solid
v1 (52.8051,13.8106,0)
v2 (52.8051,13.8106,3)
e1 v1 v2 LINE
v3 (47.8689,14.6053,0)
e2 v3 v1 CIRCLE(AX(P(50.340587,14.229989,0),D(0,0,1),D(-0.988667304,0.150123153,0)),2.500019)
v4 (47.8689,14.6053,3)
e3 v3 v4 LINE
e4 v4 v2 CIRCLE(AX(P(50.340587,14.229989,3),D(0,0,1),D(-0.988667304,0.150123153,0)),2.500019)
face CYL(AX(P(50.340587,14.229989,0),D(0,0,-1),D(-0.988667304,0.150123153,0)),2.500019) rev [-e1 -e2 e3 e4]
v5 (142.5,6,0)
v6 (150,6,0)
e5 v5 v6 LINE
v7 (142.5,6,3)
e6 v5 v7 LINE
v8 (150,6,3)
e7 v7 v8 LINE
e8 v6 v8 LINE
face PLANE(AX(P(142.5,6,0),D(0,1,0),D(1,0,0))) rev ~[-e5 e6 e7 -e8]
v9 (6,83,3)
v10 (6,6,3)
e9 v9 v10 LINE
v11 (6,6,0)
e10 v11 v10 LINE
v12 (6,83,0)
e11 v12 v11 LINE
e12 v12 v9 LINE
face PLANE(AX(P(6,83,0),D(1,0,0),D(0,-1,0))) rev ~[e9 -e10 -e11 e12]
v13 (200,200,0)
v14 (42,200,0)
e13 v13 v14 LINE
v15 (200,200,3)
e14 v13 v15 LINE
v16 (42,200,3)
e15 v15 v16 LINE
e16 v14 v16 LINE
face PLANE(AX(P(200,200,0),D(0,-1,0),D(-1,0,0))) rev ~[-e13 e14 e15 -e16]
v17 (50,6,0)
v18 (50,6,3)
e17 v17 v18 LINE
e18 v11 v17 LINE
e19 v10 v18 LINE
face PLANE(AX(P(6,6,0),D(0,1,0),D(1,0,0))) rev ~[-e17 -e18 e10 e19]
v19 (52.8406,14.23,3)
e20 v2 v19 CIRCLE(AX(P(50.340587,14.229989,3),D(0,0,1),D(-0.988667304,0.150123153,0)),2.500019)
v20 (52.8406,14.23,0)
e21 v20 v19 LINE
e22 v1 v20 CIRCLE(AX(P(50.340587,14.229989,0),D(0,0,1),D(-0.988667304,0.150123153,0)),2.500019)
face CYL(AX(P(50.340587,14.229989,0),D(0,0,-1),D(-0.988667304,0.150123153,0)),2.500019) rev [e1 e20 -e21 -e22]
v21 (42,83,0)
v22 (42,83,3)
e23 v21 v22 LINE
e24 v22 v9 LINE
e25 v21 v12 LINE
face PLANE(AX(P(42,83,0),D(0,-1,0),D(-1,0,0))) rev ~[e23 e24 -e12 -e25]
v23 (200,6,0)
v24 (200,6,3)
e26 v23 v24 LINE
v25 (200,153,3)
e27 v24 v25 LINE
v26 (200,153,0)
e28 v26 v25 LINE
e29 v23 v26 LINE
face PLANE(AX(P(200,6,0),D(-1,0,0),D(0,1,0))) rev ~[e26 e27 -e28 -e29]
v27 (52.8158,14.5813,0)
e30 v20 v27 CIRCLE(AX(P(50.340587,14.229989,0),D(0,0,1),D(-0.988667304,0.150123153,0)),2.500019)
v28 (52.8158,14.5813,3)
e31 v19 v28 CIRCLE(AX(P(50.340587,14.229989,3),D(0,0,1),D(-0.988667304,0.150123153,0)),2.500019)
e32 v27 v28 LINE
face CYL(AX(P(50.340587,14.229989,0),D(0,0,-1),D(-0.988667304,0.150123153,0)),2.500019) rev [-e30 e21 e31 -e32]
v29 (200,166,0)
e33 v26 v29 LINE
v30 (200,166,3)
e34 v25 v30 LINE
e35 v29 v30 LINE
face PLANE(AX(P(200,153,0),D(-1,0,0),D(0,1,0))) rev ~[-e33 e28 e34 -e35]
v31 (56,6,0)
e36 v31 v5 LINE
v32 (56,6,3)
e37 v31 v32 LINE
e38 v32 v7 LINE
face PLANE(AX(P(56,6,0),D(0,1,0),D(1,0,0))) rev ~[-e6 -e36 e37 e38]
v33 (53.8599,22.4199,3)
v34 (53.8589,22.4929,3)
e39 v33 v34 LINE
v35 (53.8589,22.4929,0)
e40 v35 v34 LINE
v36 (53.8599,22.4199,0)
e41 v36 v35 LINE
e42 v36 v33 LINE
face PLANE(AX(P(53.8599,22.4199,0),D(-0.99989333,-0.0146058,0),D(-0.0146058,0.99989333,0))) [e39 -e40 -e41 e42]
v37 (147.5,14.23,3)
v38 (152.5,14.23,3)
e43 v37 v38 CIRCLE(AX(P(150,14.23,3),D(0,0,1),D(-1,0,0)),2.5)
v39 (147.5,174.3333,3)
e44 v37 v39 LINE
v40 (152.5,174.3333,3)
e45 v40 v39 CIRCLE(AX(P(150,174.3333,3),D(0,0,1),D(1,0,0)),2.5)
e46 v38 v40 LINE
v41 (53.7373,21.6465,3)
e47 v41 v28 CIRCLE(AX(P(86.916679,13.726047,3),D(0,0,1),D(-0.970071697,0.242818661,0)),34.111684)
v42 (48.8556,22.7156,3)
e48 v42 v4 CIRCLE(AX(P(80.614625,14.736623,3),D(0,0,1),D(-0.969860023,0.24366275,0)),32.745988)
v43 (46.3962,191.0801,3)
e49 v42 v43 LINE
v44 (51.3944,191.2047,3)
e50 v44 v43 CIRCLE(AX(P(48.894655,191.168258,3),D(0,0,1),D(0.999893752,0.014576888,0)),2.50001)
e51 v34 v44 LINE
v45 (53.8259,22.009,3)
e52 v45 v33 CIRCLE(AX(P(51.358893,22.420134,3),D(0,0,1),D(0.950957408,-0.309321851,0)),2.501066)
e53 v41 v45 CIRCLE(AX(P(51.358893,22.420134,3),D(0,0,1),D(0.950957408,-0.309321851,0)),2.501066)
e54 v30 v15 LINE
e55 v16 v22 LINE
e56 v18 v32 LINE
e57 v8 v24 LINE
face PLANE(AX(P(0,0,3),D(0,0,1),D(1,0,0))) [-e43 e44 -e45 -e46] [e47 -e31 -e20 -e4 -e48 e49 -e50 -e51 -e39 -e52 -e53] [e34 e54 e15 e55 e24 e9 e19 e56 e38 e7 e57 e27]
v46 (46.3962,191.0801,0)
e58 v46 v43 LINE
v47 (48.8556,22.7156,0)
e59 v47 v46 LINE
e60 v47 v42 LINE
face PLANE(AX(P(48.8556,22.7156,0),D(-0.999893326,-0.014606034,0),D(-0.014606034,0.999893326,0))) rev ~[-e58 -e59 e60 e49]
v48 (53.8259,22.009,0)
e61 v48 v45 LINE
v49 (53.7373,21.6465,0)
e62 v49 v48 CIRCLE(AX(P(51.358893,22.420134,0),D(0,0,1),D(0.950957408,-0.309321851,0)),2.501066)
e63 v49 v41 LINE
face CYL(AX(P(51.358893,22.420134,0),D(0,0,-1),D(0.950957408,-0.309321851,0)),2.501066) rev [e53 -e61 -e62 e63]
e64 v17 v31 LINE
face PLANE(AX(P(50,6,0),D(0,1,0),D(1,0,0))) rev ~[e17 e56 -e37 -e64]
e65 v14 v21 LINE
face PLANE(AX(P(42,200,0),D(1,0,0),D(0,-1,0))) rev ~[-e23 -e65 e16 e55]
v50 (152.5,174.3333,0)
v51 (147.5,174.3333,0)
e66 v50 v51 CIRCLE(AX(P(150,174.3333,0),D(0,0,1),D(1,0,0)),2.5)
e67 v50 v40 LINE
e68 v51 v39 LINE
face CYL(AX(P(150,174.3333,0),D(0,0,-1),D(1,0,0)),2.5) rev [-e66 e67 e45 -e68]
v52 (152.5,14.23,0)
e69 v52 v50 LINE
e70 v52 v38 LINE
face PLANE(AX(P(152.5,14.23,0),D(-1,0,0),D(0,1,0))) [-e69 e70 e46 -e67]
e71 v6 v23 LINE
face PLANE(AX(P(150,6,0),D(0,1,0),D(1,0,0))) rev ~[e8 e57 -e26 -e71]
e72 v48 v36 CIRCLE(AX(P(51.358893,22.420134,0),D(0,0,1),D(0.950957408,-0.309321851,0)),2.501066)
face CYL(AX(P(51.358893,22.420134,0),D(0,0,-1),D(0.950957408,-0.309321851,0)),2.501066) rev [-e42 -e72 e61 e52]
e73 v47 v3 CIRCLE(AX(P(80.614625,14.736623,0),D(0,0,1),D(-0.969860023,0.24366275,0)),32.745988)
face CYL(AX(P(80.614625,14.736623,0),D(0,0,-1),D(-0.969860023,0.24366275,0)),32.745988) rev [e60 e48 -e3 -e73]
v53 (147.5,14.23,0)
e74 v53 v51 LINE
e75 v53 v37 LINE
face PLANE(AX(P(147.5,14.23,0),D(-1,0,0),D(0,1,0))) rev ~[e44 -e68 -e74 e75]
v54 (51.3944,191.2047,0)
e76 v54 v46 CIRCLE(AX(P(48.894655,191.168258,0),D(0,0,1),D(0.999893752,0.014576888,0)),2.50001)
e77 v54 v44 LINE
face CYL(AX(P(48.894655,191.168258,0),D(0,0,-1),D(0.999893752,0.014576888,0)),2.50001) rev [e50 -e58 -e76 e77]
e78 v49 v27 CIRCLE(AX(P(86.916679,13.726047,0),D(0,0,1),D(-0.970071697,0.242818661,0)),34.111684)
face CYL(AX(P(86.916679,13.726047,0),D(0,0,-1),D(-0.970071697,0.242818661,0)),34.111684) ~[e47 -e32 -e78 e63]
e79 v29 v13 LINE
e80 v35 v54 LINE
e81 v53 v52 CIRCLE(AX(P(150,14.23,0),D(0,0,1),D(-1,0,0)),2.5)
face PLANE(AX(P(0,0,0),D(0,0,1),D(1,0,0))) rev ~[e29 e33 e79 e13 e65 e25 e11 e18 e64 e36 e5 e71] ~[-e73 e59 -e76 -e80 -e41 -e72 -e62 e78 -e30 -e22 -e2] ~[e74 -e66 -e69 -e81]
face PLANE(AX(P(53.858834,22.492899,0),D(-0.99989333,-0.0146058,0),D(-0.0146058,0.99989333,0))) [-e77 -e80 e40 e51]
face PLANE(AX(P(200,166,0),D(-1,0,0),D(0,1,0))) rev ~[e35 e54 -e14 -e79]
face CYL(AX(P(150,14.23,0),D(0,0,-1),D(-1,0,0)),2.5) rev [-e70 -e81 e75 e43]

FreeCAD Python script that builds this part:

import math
import FreeCAD as App
import Part
import Sketcher

V = App.Vector

doc = App.newDocument("Part")
body = doc.addObject("PartDesign::Body", "Body")

# Sketch on XY plane
sketch1 = body.newObject("Sketcher::SketchObject", "Sketch")
sketch1.AttachmentSupport = (doc.getObject("XY_Plane"), [""])
sketch1.MapMode = "FlatFace"
sketch1.addGeometry(Part.LineSegment(V(6, 83, 0), V(6, 6, 0)), False)
sketch1.addGeometry(Part.LineSegment(V(6, 6, 0), V(200, 6, 0)), False)
sketch1.addGeometry(Part.LineSegment(V(200, 6, 0), V(200, 200, 0)), False)
sketch1.addGeometry(Part.LineSegment(V(200, 200, 0), V(42, 200, 0)), False)
sketch1.addGeometry(Part.LineSegment(V(42, 200, 0), V(42, 83, 0)), False)
sketch1.addGeometry(Part.LineSegment(V(42, 83, 0), V(6, 83, 0)), False)
sketch1.addGeometry(Part.ArcOfCircle(Part.Circle(V(50.3, 14.2, 0), V(0, 0, 1), 2.5), math.radians(171), math.radians(368)), False)
sketch1.addGeometry(Part.ArcOfCircle(Part.Circle(V(80.6, 14.7, 0), V(0, 0, 1), 32.7), math.radians(165.9), math.radians(180.23)), False)
sketch1.addGeometry(Part.LineSegment(V(48.9, 22.7, 0), V(46.4, 191.1, 0)), False)
sketch1.addGeometry(Part.ArcOfCircle(Part.Circle(V(48.9, 191.2, 0), V(0, 0, 1), 2.5), math.radians(1), math.radians(182)), False)
sketch1.addGeometry(Part.LineSegment(V(51.4, 191.2, 0), V(53.9, 22.4, 0)), False)
sketch1.addGeometry(Part.ArcOfCircle(Part.Circle(V(51.4, 22.4, 0), V(0, 0, 1), 2.5), math.radians(-18.02), math.radians(-0.01)), False)
sketch1.addGeometry(Part.ArcOfCircle(Part.Circle(V(86.9, 13.7, 0), V(0, 0, 1), 34.1), math.radians(166.57), math.radians(178.56)), False)
sketch1.addGeometry(Part.ArcOfCircle(Part.Circle(V(150, 174.3, 0), V(0, 0, 1), 2.5), math.radians(0), math.radians(180)), False)
sketch1.addGeometry(Part.LineSegment(V(152.5, 174.3, 0), V(152.5, 14.2, 0)), False)
sketch1.addGeometry(Part.ArcOfCircle(Part.Circle(V(150, 14.2, 0), V(0, 0, 1), 2.5), math.radians(180), math.radians(360)), False)
sketch1.addGeometry(Part.LineSegment(V(147.5, 14.2, 0), V(147.5, 174.3, 0)), False)
sketch1.addConstraint(Sketcher.Constraint("Coincident", 0, 2, 1, 1))
sketch1.addConstraint(Sketcher.Constraint("Coincident", 1, 2, 2, 1))
sketch1.addConstraint(Sketcher.Constraint("Coincident", 2, 2, 3, 1))
sketch1.addConstraint(Sketcher.Constraint("Coincident", 3, 2, 4, 1))
sketch1.addConstraint(Sketcher.Constraint("Coincident", 4, 2, 5, 1))
sketch1.addConstraint(Sketcher.Constraint("Coincident", 5, 2, 0, 1))
sketch1.addConstraint(Sketcher.Constraint("Coincident", 6, 1, 7, 2))
sketch1.addConstraint(Sketcher.Constraint("Coincident", 7, 1, 8, 1))
sketch1.addConstraint(Sketcher.Constraint("Coincident", 8, 2, 9, 2))
sketch1.addConstraint(Sketcher.Constraint("Tangent", 9, 1, 10, 1))
sketch1.addConstraint(Sketcher.Constraint("Coincident", 10, 2, 11, 2))
sketch1.addConstraint(Sketcher.Constraint("Coincident", 11, 1, 12, 1))
sketch1.addConstraint(Sketcher.Constraint("Coincident", 12, 2, 6, 2))
sketch1.addConstraint(Sketcher.Constraint("Tangent", 13, 1, 14, 1))
sketch1.addConstraint(Sketcher.Constraint("Tangent", 14, 2, 15, 2))
sketch1.addConstraint(Sketcher.Constraint("Tangent", 15, 1, 16, 1))
sketch1.addConstraint(Sketcher.Constraint("Tangent", 16, 2, 13, 2))
sketch1.addConstraint(Sketcher.Constraint("Vertical", 0))
sketch1.addConstraint(Sketcher.Constraint("Horizontal", 1))
sketch1.addConstraint(Sketcher.Constraint("Vertical", 2))
sketch1.addConstraint(Sketcher.Constraint("Horizontal", 3))
sketch1.addConstraint(Sketcher.Constraint("Vertical", 4))
sketch1.addConstraint(Sketcher.Constraint("Horizontal", 5))
sketch1.addConstraint(Sketcher.Constraint("Vertical", 14))
sketch1.addConstraint(Sketcher.Constraint("Vertical", 16))
sketch1.addConstraint(Sketcher.Constraint("Equal", 6, 9))
sketch1.addConstraint(Sketcher.Constraint("Equal", 9, 13))
sketch1.addConstraint(Sketcher.Constraint("Parallel", 8, 10))
sketch1.addConstraint(Sketcher.Constraint("Horizontal", 6, 3, 15, 3))
sketch1.addConstraint(Sketcher.Constraint("Equal", 1, 2))
sketch1.addConstraint(Sketcher.Constraint("DistanceX", 1, 1, 1, 2, 194.0))
sketch1.addConstraint(Sketcher.Constraint("Radius", 6, 2.5))
sketch1.addConstraint(Sketcher.Constraint("DistanceX", 3, 2, 3, 1, 158.0))
sketch1.addConstraint(Sketcher.Constraint("DistanceY", 0, 2, 0, 1, 77.0))
sketch1.addConstraint(Sketcher.Constraint("DistanceX", -1, 1, 13, 3, 150.0))
sketch1.addConstraint(Sketcher.Constraint("DistanceX", -1, 1, 0, 2, 6.0))
sketch1.addConstraint(Sketcher.Constraint("DistanceY", -1, 1, 0, 2, 6.0))
sketch1.addConstraint(Sketcher.Constraint("Radius", 7, 32.746))
sketch1.addConstraint(Sketcher.Constraint("Radius", 11, 2.501))
sketch1.addConstraint(Sketcher.Constraint("Radius", 12, 34.1117))
sketch1.addConstraint(Sketcher.Constraint("DistanceY", -1, 1, 6, 3, 14.23))
sketch1.addConstraint(Sketcher.Constraint("DistanceY", -1, 1, 8, 2, 191.08))
sketch1.addConstraint(Sketcher.Constraint("DistanceX", -1, 1, 10, 2, 53.86))
sketch1.addConstraint(Sketcher.Constraint("DistanceY", -1, 1, 10, 2, 22.42))
sketch1.addConstraint(Sketcher.Constraint("DistanceX", 9, 3, 7, 3, 31.72))
sketch1.addConstraint(Sketcher.Constraint("DistanceX", 6, 1, 11, 3, 3.49))
sketch1.addConstraint(Sketcher.Constraint("DistanceY", 14, 2, 14, 1, 160.1033))
sketch1.addConstraint(Sketcher.Constraint("DistanceY", -1, 1, 12, 3, 13.726))
sketch1.addConstraint(Sketcher.Constraint("DistanceX", 6, 3, 7, 3, 30.274))
sketch1.addConstraint(Sketcher.Constraint("DistanceY", 11, 3, 9, 3, 168.748))
sketch1.addConstraint(Sketcher.Constraint("DistanceX", 7, 3, 12, 3, 6.302))
sketch1.addConstraint(Sketcher.Constraint("DistanceY", 12, 3, 11, 3, 8.694))
sketch1.addConstraint(Sketcher.Constraint("DistanceY", 11, 1, 7, 1, 1.069))
pad1 = body.newObject("PartDesign::Pad", "Pad")
pad1.Profile = sketch1
pad1.Length = 3

doc.recompute()
